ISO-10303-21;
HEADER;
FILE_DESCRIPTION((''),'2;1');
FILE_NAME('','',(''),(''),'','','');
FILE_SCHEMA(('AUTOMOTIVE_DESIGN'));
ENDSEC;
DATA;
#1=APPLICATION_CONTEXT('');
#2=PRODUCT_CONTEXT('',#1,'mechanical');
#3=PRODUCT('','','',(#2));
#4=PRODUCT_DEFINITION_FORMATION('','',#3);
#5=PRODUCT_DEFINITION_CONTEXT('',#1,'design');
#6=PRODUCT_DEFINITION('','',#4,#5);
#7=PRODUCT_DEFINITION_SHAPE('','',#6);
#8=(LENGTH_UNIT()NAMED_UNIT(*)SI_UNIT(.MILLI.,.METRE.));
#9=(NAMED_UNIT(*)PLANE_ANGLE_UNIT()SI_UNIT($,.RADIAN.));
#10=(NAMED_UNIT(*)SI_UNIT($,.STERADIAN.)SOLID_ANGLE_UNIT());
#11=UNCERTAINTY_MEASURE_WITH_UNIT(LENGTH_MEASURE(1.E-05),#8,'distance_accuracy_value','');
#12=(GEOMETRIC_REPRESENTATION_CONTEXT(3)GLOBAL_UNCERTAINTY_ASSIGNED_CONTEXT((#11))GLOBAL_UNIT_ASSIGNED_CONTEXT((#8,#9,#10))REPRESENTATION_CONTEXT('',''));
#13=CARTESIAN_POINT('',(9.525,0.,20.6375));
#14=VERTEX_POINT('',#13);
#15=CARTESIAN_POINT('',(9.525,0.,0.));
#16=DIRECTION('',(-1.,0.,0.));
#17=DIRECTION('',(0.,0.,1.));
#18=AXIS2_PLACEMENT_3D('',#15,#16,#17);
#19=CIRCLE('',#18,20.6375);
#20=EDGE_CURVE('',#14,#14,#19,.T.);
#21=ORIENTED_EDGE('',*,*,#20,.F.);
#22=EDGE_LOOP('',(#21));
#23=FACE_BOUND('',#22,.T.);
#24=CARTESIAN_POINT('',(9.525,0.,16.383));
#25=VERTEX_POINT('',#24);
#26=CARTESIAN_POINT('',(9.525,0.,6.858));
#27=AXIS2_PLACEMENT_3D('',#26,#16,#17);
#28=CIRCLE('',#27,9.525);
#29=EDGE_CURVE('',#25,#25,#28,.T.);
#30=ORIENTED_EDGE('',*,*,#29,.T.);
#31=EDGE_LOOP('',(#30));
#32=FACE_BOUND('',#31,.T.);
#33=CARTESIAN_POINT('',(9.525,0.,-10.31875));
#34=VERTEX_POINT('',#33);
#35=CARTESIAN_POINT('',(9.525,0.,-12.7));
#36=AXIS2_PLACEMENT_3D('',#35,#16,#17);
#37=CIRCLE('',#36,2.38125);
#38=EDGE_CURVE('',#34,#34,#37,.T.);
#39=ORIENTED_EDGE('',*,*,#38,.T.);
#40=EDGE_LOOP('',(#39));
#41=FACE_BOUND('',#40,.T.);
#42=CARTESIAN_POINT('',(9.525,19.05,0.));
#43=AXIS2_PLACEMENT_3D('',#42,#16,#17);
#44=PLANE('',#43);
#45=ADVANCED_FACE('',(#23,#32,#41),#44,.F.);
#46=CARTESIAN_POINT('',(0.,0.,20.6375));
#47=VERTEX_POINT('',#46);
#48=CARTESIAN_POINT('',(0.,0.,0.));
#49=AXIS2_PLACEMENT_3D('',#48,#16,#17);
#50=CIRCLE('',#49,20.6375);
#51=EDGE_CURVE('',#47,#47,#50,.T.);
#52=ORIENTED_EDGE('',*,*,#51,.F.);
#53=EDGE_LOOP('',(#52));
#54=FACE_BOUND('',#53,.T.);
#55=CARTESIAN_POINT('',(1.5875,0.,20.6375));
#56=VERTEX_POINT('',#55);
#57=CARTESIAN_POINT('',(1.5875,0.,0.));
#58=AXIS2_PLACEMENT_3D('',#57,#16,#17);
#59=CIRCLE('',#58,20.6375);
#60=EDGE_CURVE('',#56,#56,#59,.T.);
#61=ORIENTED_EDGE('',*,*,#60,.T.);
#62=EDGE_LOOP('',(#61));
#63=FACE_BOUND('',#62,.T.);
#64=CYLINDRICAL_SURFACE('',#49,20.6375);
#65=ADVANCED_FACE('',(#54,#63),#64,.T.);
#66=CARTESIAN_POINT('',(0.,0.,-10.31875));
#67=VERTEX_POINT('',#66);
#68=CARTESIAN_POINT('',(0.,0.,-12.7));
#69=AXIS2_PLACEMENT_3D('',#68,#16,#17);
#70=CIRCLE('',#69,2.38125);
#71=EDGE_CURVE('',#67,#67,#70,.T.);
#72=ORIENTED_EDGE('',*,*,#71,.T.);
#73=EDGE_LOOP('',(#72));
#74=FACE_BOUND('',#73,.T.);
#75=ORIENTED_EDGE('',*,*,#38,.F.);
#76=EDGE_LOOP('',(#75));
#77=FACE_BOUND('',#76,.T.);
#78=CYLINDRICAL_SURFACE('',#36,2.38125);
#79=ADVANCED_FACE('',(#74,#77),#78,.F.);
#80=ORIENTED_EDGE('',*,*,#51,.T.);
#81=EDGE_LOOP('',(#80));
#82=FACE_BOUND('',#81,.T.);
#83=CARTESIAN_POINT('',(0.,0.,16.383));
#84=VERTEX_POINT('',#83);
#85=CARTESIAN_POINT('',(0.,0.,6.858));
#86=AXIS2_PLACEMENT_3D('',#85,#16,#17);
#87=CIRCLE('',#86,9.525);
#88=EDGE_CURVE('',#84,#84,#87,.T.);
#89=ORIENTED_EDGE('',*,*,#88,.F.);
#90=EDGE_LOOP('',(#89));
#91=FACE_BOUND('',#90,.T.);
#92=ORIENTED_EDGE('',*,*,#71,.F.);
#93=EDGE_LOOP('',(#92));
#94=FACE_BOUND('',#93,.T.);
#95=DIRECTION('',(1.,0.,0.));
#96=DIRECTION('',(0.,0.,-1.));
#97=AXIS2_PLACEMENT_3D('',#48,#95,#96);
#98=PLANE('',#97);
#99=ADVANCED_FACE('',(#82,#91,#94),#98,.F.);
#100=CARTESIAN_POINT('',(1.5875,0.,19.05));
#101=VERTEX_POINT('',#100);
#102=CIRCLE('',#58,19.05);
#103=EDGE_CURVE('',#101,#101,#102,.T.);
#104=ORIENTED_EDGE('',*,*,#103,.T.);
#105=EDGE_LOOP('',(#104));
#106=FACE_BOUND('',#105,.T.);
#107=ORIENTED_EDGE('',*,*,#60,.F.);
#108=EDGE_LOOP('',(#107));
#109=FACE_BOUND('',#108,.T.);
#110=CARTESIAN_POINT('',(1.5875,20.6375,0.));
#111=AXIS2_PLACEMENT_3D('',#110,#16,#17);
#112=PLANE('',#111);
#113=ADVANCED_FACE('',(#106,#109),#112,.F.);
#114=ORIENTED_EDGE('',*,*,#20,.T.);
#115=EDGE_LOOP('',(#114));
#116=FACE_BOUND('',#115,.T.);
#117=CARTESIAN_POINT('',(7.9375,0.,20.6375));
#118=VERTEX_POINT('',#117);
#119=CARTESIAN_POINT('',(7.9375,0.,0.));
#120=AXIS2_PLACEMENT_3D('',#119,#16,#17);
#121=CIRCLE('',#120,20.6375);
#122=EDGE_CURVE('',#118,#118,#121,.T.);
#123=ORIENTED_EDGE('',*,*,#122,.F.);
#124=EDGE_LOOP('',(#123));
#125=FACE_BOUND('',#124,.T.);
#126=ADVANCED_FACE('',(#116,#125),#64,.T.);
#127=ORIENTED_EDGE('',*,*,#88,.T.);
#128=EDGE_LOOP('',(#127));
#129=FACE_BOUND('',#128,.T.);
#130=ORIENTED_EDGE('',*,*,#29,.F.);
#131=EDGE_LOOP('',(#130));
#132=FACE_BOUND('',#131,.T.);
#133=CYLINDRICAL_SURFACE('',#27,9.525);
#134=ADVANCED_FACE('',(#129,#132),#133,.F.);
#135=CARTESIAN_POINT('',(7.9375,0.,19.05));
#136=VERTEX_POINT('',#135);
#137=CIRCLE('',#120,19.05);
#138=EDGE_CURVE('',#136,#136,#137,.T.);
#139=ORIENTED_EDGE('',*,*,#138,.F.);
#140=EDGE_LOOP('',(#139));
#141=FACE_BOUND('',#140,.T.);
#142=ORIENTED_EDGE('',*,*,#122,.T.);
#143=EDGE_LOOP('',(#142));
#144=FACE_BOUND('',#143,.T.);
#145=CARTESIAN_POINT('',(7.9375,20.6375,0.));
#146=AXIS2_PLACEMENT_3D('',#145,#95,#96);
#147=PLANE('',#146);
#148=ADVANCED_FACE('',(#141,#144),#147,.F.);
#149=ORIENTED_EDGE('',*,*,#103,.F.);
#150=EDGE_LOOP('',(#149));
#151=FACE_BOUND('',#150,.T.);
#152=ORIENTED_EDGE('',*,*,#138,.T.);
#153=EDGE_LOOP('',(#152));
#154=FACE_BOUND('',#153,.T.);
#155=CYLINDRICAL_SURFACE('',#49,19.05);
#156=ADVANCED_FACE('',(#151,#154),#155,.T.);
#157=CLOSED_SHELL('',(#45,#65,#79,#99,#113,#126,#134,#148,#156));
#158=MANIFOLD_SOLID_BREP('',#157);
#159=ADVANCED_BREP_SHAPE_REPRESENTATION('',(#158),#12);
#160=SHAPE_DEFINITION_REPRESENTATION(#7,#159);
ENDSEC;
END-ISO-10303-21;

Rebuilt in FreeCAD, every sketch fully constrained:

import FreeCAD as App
import Part
import Sketcher

V = App.Vector
Q = App.Units.Quantity

doc = App.newDocument("Part")
params = doc.addObject("Spreadsheet::Sheet", "Params")
for row, (alias, value) in enumerate([
    ("sketch1_width", "0.25 in"),
    ("sketch1_width2", "0.375 in"),
    ("sketch1_height", "0.8125 in"),
    ("revolution_angle", "360 deg"),
    ("sketch2_diameter", "0.75 in"),
    ("sketch2_diameter2", "0.1875 in"),
], start=1):
    params.set(f"A{row}", alias)
    params.set(f"B{row}", "=" + value)
    params.setAlias(f"B{row}", alias)

body = doc.addObject("PartDesign::Body", "Body")

# Sketch on XY plane
sketch1 = body.newObject("Sketcher::SketchObject", "Sketch")
sketch1.AttachmentSupport = (doc.getObject("XY_Plane"), [""])
sketch1.MapMode = "FlatFace"
sketch1.addGeometry(Part.LineSegment(V(0, 20.6375, 0), V(0, 0, 0)), False)
sketch1.addGeometry(Part.LineSegment(V(0, 0, 0), V(9.525, 0, 0)), False)
sketch1.addGeometry(Part.LineSegment(V(9.525, 0, 0), V(9.525, 20.6375, 0)), False)
sketch1.addGeometry(Part.LineSegment(V(9.525, 20.6375, 0), V(7.9375, 20.6375, 0)), False)
sketch1.addGeometry(Part.LineSegment(V(7.9375, 20.6375, 0), V(7.9375, 19.05, 0)), False)
sketch1.addGeometry(Part.LineSegment(V(7.9375, 19.05, 0), V(1.5875, 19.05, 0)), False)
sketch1.addGeometry(Part.LineSegment(V(1.5875, 19.05, 0), V(1.5875, 20.6375, 0)), False)
sketch1.addGeometry(Part.LineSegment(V(1.5875, 20.6375, 0), V(0, 20.6375, 0)), False)
sketch1.addConstraint(Sketcher.Constraint("Coincident", 0, 2, 1, 1))
sketch1.addConstraint(Sketcher.Constraint("Coincident", 1, 2, 2, 1))
sketch1.addConstraint(Sketcher.Constraint("Coincident", 2, 2, 3, 1))
sketch1.addConstraint(Sketcher.Constraint("Coincident", 3, 2, 4, 1))
sketch1.addConstraint(Sketcher.Constraint("Coincident", 4, 2, 5, 1))
sketch1.addConstraint(Sketcher.Constraint("Coincident", 5, 2, 6, 1))
sketch1.addConstraint(Sketcher.Constraint("Coincident", 6, 2, 7, 1))
sketch1.addConstraint(Sketcher.Constraint("Coincident", 7, 2, 0, 1))
sketch1.addConstraint(Sketcher.Constraint("Vertical", 0))
sketch1.addConstraint(Sketcher.Constraint("Horizontal", 1))
sketch1.addConstraint(Sketcher.Constraint("Vertical", 2))
sketch1.addConstraint(Sketcher.Constraint("Horizontal", 3))
sketch1.addConstraint(Sketcher.Constraint("Vertical", 4))
sketch1.addConstraint(Sketcher.Constraint("Horizontal", 5))
sketch1.addConstraint(Sketcher.Constraint("Vertical", 6))
sketch1.addConstraint(Sketcher.Constraint("Horizontal", 7))
sketch1.addConstraint(Sketcher.Constraint("Coincident", 0, 2, -1, 1))
sketch1.addConstraint(Sketcher.Constraint("Horizontal", 3, 2, 6, 2))
sketch1.addConstraint(Sketcher.Constraint("Equal", 3, 7))
sketch1.addConstraint(Sketcher.Constraint("Equal", 7, 4))
sketch1.addConstraint(Sketcher.Constraint("DistanceX", 5, 2, 5, 1, Q("0.25 in")))
sketch1.addConstraint(Sketcher.Constraint("DistanceX", 1, 1, 1, 2, Q("0.375 in")))
sketch1.addConstraint(Sketcher.Constraint("DistanceY", 0, 2, 0, 1, Q("0.8125 in")))
sketch1.setExpression("Constraints[20]", "Params.sketch1_width")
sketch1.setExpression("Constraints[21]", "Params.sketch1_width2")
sketch1.setExpression("Constraints[22]", "Params.sketch1_height")
revolution = body.newObject("PartDesign::Revolution", "Revolution")
revolution.Profile = sketch1
revolution.ReferenceAxis = (sketch1, ["H_Axis"])
revolution.setExpression("Angle", "Params.revolution_angle")

# Sketch on YZ plane
sketch2 = body.newObject("Sketcher::SketchObject", "Sketch001")
sketch2.AttachmentSupport = (doc.getObject("YZ_Plane"), [""])
sketch2.MapMode = "FlatFace"
sketch2.addGeometry(Part.Circle(V(0, -12.7, 0), V(0, 0, 1), 2.38125), False)
sketch2.addGeometry(Part.Circle(V(0, 6.858, 0), V(0, 0, 1), 9.525), False)
sketch2.addConstraint(Sketcher.Constraint("PointOnObject", 0, 3, -2))
sketch2.addConstraint(Sketcher.Constraint("PointOnObject", 1, 3, -2))
sketch2.addConstraint(Sketcher.Constraint("Diameter", 1, Q("0.75 in")))
sketch2.addConstraint(Sketcher.Constraint("Diameter", 0, Q("0.1875 in")))
sketch2.addConstraint(Sketcher.Constraint("DistanceY", 0, 3, -1, 1, Q("0.5 in")))
sketch2.addConstraint(Sketcher.Constraint("DistanceY", -1, 1, 1, 3, Q("0.27 in")))
sketch2.setExpression("Constraints[2]", "Params.sketch2_diameter")
sketch2.setExpression("Constraints[3]", "Params.sketch2_diameter2")
pocket1 = body.newObject("PartDesign::Pocket", "Pocket")
pocket1.Profile = sketch2
pocket1.Type = "ThroughAll"
pocket1.Reversed = True

doc.recompute()
